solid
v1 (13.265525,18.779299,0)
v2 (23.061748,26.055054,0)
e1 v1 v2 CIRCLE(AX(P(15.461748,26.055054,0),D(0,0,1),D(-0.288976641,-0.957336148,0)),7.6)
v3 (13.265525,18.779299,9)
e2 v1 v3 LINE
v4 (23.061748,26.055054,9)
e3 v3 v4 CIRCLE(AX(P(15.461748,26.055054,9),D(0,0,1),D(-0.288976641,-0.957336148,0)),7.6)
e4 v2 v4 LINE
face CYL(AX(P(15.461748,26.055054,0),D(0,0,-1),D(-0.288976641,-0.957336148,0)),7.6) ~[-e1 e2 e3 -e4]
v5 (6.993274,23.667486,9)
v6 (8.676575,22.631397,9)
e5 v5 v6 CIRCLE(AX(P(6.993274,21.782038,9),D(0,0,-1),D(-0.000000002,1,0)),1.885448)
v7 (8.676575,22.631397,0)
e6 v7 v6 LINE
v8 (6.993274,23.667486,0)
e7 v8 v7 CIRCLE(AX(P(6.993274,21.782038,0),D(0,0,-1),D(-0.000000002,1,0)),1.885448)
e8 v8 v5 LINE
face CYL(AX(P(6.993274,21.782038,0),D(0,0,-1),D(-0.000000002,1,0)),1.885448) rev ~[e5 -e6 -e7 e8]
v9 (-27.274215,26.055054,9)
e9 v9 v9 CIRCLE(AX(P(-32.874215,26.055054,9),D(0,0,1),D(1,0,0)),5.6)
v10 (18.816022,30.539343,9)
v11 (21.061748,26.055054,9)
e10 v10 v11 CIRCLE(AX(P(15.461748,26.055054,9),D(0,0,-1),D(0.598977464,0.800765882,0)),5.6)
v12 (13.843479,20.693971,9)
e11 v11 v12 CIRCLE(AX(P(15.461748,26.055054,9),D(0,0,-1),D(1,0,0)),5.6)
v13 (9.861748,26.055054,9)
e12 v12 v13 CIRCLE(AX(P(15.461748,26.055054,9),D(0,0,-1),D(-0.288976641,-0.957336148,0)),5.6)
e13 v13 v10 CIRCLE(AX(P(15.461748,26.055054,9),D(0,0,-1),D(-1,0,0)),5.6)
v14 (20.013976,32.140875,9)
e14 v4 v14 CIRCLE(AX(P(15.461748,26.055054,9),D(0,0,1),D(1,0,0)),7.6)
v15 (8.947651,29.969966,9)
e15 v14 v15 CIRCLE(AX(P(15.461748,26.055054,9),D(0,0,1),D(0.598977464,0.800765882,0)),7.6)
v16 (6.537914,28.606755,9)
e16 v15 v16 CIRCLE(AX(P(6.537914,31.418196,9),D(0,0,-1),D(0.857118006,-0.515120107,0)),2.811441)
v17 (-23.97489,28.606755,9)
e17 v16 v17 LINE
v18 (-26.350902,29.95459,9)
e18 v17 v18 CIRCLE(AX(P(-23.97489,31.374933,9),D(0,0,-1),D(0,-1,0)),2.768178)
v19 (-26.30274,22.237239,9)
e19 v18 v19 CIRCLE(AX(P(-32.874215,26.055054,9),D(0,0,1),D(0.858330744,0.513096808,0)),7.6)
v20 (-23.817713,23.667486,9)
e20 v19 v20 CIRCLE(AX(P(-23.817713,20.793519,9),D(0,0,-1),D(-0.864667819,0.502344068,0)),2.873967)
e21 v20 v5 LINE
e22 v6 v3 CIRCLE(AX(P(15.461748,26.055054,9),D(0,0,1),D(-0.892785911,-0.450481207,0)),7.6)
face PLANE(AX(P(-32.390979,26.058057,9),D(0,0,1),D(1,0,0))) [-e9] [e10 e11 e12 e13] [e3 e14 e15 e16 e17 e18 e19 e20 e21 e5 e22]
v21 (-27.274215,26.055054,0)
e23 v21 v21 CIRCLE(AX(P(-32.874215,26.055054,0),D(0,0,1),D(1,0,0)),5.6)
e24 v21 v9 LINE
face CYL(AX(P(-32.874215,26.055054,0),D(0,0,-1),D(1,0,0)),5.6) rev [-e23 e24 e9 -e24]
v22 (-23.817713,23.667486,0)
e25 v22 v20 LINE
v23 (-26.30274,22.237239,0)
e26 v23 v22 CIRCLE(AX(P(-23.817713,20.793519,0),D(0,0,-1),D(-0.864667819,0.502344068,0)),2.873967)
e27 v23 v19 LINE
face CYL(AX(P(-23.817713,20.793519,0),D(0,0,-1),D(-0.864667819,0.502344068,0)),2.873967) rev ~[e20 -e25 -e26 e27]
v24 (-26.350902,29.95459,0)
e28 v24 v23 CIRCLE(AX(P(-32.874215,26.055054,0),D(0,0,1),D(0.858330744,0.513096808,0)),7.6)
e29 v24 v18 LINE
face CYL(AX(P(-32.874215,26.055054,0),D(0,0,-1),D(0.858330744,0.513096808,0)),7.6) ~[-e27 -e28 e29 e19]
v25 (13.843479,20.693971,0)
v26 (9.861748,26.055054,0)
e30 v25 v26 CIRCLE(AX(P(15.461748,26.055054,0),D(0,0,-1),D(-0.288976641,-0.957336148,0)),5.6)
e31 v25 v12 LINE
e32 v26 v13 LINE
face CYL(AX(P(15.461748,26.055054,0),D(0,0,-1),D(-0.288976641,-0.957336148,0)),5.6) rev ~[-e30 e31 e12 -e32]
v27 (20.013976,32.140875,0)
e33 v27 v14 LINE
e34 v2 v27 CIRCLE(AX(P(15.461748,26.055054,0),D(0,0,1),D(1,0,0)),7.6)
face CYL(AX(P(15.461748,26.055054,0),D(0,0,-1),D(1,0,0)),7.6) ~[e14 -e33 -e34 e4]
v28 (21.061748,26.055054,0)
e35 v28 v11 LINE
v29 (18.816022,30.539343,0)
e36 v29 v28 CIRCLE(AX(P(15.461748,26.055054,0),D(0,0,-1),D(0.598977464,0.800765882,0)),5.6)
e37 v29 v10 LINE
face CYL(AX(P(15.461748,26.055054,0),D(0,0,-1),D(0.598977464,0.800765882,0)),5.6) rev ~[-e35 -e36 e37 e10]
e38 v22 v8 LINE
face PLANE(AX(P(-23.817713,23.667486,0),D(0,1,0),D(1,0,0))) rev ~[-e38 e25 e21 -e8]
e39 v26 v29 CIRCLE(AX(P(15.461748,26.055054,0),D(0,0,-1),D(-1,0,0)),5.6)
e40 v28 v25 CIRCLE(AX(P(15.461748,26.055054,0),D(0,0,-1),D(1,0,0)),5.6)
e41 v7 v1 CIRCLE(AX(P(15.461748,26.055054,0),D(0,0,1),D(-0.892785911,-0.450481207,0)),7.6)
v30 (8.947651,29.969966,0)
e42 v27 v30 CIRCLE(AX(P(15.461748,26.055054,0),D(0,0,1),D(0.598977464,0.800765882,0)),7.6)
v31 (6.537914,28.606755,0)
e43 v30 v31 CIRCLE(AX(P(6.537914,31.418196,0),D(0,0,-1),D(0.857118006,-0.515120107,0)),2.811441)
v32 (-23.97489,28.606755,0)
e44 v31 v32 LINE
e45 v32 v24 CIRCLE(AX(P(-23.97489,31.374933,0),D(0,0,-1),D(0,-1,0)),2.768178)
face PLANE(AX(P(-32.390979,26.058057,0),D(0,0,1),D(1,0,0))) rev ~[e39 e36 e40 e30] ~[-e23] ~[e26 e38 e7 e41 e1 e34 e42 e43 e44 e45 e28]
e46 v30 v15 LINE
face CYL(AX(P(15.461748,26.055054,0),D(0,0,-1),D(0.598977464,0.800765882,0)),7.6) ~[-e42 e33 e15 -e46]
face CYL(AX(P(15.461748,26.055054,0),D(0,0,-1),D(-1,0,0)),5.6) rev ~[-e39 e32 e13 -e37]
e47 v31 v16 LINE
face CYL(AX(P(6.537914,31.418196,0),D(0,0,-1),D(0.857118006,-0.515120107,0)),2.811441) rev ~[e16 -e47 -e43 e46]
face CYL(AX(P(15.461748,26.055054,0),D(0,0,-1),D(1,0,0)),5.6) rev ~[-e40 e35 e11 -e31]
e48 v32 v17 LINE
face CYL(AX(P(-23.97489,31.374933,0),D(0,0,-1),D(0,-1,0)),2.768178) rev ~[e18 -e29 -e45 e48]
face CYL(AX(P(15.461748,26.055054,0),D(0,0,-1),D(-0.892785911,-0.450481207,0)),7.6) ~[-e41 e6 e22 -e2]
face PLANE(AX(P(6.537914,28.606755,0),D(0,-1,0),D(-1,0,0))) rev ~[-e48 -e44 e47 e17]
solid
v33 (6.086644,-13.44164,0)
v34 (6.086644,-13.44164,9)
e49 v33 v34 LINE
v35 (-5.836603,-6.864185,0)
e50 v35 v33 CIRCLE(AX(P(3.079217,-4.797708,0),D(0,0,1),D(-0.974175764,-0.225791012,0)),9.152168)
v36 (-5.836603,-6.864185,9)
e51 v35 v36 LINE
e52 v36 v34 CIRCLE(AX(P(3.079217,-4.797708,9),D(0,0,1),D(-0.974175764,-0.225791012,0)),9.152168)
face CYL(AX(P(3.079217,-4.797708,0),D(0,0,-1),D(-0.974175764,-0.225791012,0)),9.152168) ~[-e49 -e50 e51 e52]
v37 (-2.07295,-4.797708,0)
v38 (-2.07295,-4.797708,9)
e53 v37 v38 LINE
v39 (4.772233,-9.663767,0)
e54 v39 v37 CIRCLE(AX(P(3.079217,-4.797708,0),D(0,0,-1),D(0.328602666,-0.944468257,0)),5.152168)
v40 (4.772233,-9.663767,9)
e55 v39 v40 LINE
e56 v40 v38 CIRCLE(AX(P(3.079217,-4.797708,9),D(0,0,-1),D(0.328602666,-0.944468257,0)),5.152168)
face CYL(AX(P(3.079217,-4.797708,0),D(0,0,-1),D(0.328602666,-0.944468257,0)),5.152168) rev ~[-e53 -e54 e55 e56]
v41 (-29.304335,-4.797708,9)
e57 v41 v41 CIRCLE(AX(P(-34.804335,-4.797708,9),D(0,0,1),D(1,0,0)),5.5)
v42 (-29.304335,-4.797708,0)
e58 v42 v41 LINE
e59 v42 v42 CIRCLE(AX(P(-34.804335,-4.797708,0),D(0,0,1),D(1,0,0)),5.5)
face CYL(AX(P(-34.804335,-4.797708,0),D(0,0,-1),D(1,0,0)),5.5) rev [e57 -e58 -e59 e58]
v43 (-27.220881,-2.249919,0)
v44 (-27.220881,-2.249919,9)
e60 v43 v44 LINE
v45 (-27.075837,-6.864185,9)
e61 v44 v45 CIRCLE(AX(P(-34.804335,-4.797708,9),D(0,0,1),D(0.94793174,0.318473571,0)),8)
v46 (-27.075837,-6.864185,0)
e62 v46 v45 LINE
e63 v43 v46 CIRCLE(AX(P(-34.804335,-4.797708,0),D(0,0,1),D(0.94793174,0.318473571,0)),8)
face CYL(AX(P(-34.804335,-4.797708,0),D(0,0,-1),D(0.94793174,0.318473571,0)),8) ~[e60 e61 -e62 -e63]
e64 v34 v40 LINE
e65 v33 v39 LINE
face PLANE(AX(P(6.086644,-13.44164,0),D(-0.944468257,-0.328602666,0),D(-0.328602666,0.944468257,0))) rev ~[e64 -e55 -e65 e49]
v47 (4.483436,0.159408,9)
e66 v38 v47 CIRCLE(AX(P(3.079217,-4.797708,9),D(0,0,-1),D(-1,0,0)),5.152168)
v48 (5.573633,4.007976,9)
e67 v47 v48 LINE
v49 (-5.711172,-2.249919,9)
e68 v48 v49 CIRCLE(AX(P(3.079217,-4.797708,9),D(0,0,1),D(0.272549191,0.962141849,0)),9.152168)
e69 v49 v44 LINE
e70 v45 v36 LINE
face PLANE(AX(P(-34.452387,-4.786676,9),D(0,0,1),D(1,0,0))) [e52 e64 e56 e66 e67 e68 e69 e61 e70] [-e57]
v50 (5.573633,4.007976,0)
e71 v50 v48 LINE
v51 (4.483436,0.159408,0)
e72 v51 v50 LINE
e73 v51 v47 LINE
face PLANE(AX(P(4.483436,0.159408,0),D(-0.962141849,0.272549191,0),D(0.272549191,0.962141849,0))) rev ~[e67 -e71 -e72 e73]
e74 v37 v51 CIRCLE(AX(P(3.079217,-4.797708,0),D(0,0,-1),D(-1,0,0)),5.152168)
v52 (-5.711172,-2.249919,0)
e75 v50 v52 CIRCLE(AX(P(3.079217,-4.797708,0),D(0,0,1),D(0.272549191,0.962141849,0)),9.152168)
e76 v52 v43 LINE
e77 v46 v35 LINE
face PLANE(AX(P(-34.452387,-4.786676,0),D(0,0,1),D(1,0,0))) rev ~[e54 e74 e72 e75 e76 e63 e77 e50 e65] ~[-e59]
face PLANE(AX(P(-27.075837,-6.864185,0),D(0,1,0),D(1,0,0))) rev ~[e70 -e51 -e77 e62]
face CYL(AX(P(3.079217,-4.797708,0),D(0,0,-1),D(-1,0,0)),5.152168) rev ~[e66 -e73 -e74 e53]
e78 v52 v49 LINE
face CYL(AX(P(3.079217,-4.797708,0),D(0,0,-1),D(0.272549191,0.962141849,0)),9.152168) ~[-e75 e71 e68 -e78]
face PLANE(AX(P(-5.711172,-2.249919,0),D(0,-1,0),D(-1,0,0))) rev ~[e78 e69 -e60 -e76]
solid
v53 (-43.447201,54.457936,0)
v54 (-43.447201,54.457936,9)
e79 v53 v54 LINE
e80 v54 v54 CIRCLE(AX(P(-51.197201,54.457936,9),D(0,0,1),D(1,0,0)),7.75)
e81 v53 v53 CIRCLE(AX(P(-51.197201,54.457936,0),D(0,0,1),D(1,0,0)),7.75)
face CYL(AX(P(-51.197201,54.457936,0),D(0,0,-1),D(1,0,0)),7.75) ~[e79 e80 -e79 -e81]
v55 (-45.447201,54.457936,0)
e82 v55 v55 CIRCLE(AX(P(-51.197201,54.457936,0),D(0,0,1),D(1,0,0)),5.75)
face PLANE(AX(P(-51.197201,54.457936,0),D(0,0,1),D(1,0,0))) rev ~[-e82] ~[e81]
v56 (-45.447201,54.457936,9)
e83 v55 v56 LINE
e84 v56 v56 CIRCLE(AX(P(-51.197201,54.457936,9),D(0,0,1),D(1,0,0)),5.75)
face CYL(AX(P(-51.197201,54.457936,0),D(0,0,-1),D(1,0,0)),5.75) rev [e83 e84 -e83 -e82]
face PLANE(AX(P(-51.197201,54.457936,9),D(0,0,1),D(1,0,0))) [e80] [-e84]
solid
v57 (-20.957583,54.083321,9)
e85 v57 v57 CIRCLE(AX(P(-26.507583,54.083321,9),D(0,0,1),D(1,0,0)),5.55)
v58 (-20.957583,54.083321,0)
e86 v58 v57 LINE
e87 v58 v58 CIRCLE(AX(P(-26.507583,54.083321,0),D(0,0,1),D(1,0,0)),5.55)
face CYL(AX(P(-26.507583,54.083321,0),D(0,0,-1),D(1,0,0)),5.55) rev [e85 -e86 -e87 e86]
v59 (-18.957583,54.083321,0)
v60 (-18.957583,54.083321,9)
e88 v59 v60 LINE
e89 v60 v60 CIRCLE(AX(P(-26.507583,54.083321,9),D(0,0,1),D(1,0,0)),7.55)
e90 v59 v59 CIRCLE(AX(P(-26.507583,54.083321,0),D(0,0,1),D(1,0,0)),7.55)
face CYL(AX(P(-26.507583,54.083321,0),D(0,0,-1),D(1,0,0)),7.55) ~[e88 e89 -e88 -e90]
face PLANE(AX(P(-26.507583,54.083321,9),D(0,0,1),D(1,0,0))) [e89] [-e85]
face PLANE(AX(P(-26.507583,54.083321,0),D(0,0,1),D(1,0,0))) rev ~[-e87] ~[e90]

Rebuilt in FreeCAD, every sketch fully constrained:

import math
import FreeCAD as App
import Part
import Sketcher

V = App.Vector
Q = App.Units.Quantity

doc = App.newDocument("Part")
body = doc.addObject("PartDesign::Body", "Body")

# Sketch on XY plane
sketch1 = body.newObject("Sketcher::SketchObject", "Sketch")
sketch1.AttachmentSupport = (doc.getObject("XY_Plane"), [""])
sketch1.MapMode = "FlatFace"
sketch1.addGeometry([
    Part.LineSegment(V(-23.8, 23.7, 0), V(7, 23.7, 0)),  # 0
    Part.ArcOfCircle(Part.Circle(V(7, 21.8, 0), V(0, 0, 1), 1.9), math.radians(27), math.radians(90)),  # 1
    Part.ArcOfCircle(Part.Circle(V(15.5, 26.1, 0), V(0, 0, 1), 7.6), math.radians(-153), math.radians(-107)),  # 2
    Part.ArcOfCircle(Part.Circle(V(15.5, 26.1, 0), V(0, 0, 1), 7.6), math.radians(-107), math.radians(0)),  # 3
    Part.ArcOfCircle(Part.Circle(V(15.5, 26.1, 0), V(0, 0, 1), 7.6), math.radians(0), math.radians(53)),  # 4
    Part.ArcOfCircle(Part.Circle(V(15.5, 26.1, 0), V(0, 0, 1), 7.6), math.radians(53), math.radians(149)),  # 5
    Part.ArcOfCircle(Part.Circle(V(6.5, 31.4, 0), V(0, 0, 1), 2.8), math.radians(-90), math.radians(-31)),  # 6
    Part.LineSegment(V(6.5, 28.6, 0), V(-24, 28.6, 0)),  # 7
    Part.ArcOfCircle(Part.Circle(V(-24, 31.4, 0), V(0, 0, 1), 2.8), math.radians(-149), math.radians(-90)),  # 8
    Part.ArcOfCircle(Part.Circle(V(-32.9, 26.1, 0), V(0, 0, 1), 7.6), math.radians(31), math.radians(330)),  # 9
    Part.ArcOfCircle(Part.Circle(V(-23.8, 20.8, 0), V(0, 0, 1), 2.9), math.radians(90), math.radians(150)),  # 10
    Part.ArcOfCircle(Part.Circle(V(15.5, 26.1, 0), V(0, 0, 1), 5.6), math.radians(180), math.radians(253)),  # 11
    Part.ArcOfCircle(Part.Circle(V(15.5, 26.1, 0), V(0, 0, 1), 5.6), math.radians(53), math.radians(180)),  # 12
    Part.ArcOfCircle(Part.Circle(V(15.5, 26.1, 0), V(0, 0, 1), 5.6), math.radians(0), math.radians(53)),  # 13
    Part.ArcOfCircle(Part.Circle(V(15.5, 26.1, 0), V(0, 0, 1), 5.6), math.radians(-107), math.radians(0)),  # 14
    Part.Circle(V(-32.9, 26.1, 0), V(0, 0, 1), 5.6),  # 15
], False)
sketch1.addConstraint([
    Sketcher.Constraint("Tangent", 0, 2, 1, 2),
    Sketcher.Constraint("Tangent", 1, 1, 2, 1),
    Sketcher.Constraint("Tangent", 2, 2, 3, 1),
    Sketcher.Constraint("Tangent", 3, 2, 4, 1),
    Sketcher.Constraint("Tangent", 4, 2, 5, 1),
    Sketcher.Constraint("Tangent", 5, 2, 6, 2),
    Sketcher.Constraint("Tangent", 6, 1, 7, 1),
    Sketcher.Constraint("Tangent", 7, 2, 8, 2),
    Sketcher.Constraint("Tangent", 8, 1, 9, 1),
    Sketcher.Constraint("Tangent", 9, 2, 10, 2),
    Sketcher.Constraint("Tangent", 10, 1, 0, 1),
    Sketcher.Constraint("Tangent", 11, 1, 12, 2),
    Sketcher.Constraint("Tangent", 12, 1, 13, 2),
    Sketcher.Constraint("Tangent", 13, 1, 14, 2),
    Sketcher.Constraint("Tangent", 14, 1, 11, 2),
    Sketcher.Constraint("Horizontal", 0),
    Sketcher.Constraint("Horizontal", 7),
    Sketcher.Constraint("Coincident", 4, 3, 2, 3),
    Sketcher.Constraint("Coincident", 11, 3, 2, 3),
    Sketcher.Constraint("Coincident", 15, 3, 9, 3),
    Sketcher.Constraint("Equal", 4, 5),
    Sketcher.Constraint("Equal", 5, 9),
    Sketcher.Constraint("Equal", 11, 12),
    Sketcher.Constraint("Equal", 14, 15),
    Sketcher.Constraint("Horizontal", 5, 3, 9, 3),
    Sketcher.Constraint("Horizontal", 15, 3, 3, 2),
    Sketcher.Constraint("Horizontal", 3, 2, 11, 1),
    Sketcher.Constraint("Horizontal", 11, 1, 13, 1),
    Sketcher.Constraint("Diameter", 15, Q("11.2 mm")),
    Sketcher.Constraint("Radius", 2, Q("7.6 mm")),
    Sketcher.Constraint("Radius", 6, Q("2.811441 mm")),
    Sketcher.Constraint("Radius", 1, Q("1.885448 mm")),
    Sketcher.Constraint("Radius", 8, Q("2.768178 mm")),
    Sketcher.Constraint("Radius", 10, Q("2.873967 mm")),
    Sketcher.Constraint("DistanceY", -1, 1, 2, 2, Q("18.779299 mm")),
    Sketcher.Constraint("DistanceX", 8, 1, -1, 1, Q("26.350902 mm")),
    Sketcher.Constraint("DistanceX", 1, 3, 1, 1, Q("1.683301 mm")),
    Sketcher.Constraint("DistanceY", 9, 3, 7, 2, Q("2.551701 mm")),
    Sketcher.Constraint("DistanceX", 0, 1, 0, 2, Q("30.810987 mm")),
    Sketcher.Constraint("DistanceY", -1, 1, 10, 3, Q("20.793519 mm")),
    Sketcher.Constraint("DistanceX", -1, 1, 12, 1, Q("18.816022 mm")),
    Sketcher.Constraint("DistanceX", -1, 1, 14, 1, Q("13.843479 mm")),
    Sketcher.Constraint("DistanceX", 4, 2, 3, 2, Q("3.047771 mm")),
])
pad1 = body.newObject("PartDesign::Pad", "Pad")
pad1.Profile = sketch1
pad1.Length = 9
body2 = doc.addObject("PartDesign::Body", "Body001")

# Sketch on XY plane
sketch2 = body2.newObject("Sketcher::SketchObject", "Sketch001")
sketch2.AttachmentSupport = (doc.getObject("XY_Plane001"), [""])
sketch2.MapMode = "FlatFace"
sketch2.addGeometry([
    Part.LineSegment(V(-5.7, -2.2, 0), V(-27.2, -2.2, 0)),  # 0
    Part.ArcOfCircle(Part.Circle(V(-34.8, -4.8, 0), V(0, 0, 1), 8), math.radians(19), math.radians(345)),  # 1
    Part.LineSegment(V(-27.1, -6.9, 0), V(-5.8, -6.9, 0)),  # 2
    Part.ArcOfCircle(Part.Circle(V(3.1, -4.8, 0), V(0, 0, 1), 9.2), math.radians(-167), math.radians(-71)),  # 3
    Part.LineSegment(V(6.1, -13.4, 0), V(4.8, -9.7, 0)),  # 4
    Part.ArcOfCircle(Part.Circle(V(3.1, -4.8, 0), V(0, 0, 1), 5.2), math.radians(180), math.radians(289)),  # 5
    Part.ArcOfCircle(Part.Circle(V(3.1, -4.8, 0), V(0, 0, 1), 5.2), math.radians(74), math.radians(180)),  # 6
    Part.LineSegment(V(4.5, 0.2, 0), V(5.6, 4, 0)),  # 7
    Part.ArcOfCircle(Part.Circle(V(3.1, -4.8, 0), V(0, 0, 1), 9.2), math.radians(74), math.radians(164)),  # 8
    Part.Circle(V(-34.8, -4.8, 0), V(0, 0, 1), 5.5),  # 9
], False)
sketch2.addConstraint([
    Sketcher.Constraint("Coincident", 0, 2, 1, 1),
    Sketcher.Constraint("Coincident", 1, 2, 2, 1),
    Sketcher.Constraint("Coincident", 2, 2, 3, 1),
    Sketcher.Constraint("Coincident", 3, 2, 4, 1),
    Sketcher.Constraint("Coincident", 4, 2, 5, 2),
    Sketcher.Constraint("Tangent", 5, 1, 6, 2),
    Sketcher.Constraint("Coincident", 6, 1, 7, 1),
    Sketcher.Constraint("Coincident", 7, 2, 8, 1),
    Sketcher.Constraint("Coincident", 8, 2, 0, 1),
    Sketcher.Constraint("Horizontal", 0),
    Sketcher.Constraint("Horizontal", 2),
    Sketcher.Constraint("Coincident", 5, 3, 3, 3),
    Sketcher.Constraint("Coincident", 8, 3, 3, 3),
    Sketcher.Constraint("Coincident", 9, 3, 1, 3),
    Sketcher.Constraint("Equal", 5, 6),
    Sketcher.Constraint("Equal", 3, 8),
    Sketcher.Constraint("Horizontal", 1, 3, 3, 3),
    Sketcher.Constraint("Horizontal", 9, 3, 5, 1),
    Sketcher.Constraint("Diameter", 9, Q("11 mm")),
    Sketcher.Constraint("Radius", 1, Q("8 mm")),
    Sketcher.Constraint("Distance", 4, Q("4 mm")),
    Sketcher.Constraint("Radius", 3, Q("9.152168 mm")),
    Sketcher.Constraint("DistanceX", 0, 2, 0, 1, Q("21.509708 mm")),
    Sketcher.Constraint("DistanceX", 2, 1, 2, 2, Q("21.239234 mm")),
    Sketcher.Constraint("DistanceX", 0, 2, -1, 1, Q("27.220881 mm")),
    Sketcher.Constraint("DistanceY", 0, 2, -1, 1, Q("2.249919 mm")),
    Sketcher.Constraint("DistanceY", 3, 2, -1, 1, Q("13.44164 mm")),
    Sketcher.Constraint("DistanceX", 5, 1, -1, 1, Q("2.07295 mm")),
    Sketcher.Constraint("DistanceY", -1, 1, 6, 1, Q("0.159408 mm")),
    Sketcher.Constraint("DistanceX", 4, 2, 3, 2, Q("1.314411 mm")),
    Sketcher.Constraint("DistanceX", -1, 1, 7, 2, Q("5.573633 mm")),
])
pad2 = body2.newObject("PartDesign::Pad", "Pad001")
pad2.Profile = sketch2
pad2.Length = 9
body3 = doc.addObject("PartDesign::Body", "Body002")

# Sketch on XY plane
sketch3 = body3.newObject("Sketcher::SketchObject", "Sketch002")
sketch3.AttachmentSupport = (doc.getObject("XY_Plane002"), [""])
sketch3.MapMode = "FlatFace"
sketch3.addGeometry([
    Part.Circle(V(-51, 54, 0), V(0, 0, 1), 8),
    Part.Circle(V(-51, 54, 0), V(0, 0, 1), 6),
], False)
sketch3.addConstraint([
    Sketcher.Constraint("Coincident", 1, 3, 0, 3),
    Sketcher.Constraint("Diameter", 0, Q("15.5 mm")),
    Sketcher.Constraint("Diameter", 1, Q("11.5 mm")),
    Sketcher.Constraint("DistanceX", 0, 3, -1, 1, Q("51.197201 mm")),
    Sketcher.Constraint("DistanceY", -1, 1, 0, 3, Q("54.457936 mm")),
])
pad3 = body3.newObject("PartDesign::Pad", "Pad002")
pad3.Profile = sketch3
pad3.Length = 9
body4 = doc.addObject("PartDesign::Body", "Body003")

# Sketch on XY plane
sketch4 = body4.newObject("Sketcher::SketchObject", "Sketch003")
sketch4.AttachmentSupport = (doc.getObject("XY_Plane003"), [""])
sketch4.MapMode = "FlatFace"
sketch4.addGeometry([
    Part.Circle(V(-27, 54, 0), V(0, 0, 1), 8),
    Part.Circle(V(-27, 54, 0), V(0, 0, 1), 6),
], False)
sketch4.addConstraint([
    Sketcher.Constraint("Coincident", 1, 3, 0, 3),
    Sketcher.Constraint("Diameter", 0, Q("15.1 mm")),
    Sketcher.Constraint("Diameter", 1, Q("11.1 mm")),
    Sketcher.Constraint("DistanceY", -1, 1, 0, 3, Q("54.083321 mm")),
    Sketcher.Constraint("DistanceX", 0, 3, -1, 1, Q("26.507583 mm")),
])
pad4 = body4.newObject("PartDesign::Pad", "Pad003")
pad4.Profile = sketch4
pad4.Length = 9

doc.recompute()
